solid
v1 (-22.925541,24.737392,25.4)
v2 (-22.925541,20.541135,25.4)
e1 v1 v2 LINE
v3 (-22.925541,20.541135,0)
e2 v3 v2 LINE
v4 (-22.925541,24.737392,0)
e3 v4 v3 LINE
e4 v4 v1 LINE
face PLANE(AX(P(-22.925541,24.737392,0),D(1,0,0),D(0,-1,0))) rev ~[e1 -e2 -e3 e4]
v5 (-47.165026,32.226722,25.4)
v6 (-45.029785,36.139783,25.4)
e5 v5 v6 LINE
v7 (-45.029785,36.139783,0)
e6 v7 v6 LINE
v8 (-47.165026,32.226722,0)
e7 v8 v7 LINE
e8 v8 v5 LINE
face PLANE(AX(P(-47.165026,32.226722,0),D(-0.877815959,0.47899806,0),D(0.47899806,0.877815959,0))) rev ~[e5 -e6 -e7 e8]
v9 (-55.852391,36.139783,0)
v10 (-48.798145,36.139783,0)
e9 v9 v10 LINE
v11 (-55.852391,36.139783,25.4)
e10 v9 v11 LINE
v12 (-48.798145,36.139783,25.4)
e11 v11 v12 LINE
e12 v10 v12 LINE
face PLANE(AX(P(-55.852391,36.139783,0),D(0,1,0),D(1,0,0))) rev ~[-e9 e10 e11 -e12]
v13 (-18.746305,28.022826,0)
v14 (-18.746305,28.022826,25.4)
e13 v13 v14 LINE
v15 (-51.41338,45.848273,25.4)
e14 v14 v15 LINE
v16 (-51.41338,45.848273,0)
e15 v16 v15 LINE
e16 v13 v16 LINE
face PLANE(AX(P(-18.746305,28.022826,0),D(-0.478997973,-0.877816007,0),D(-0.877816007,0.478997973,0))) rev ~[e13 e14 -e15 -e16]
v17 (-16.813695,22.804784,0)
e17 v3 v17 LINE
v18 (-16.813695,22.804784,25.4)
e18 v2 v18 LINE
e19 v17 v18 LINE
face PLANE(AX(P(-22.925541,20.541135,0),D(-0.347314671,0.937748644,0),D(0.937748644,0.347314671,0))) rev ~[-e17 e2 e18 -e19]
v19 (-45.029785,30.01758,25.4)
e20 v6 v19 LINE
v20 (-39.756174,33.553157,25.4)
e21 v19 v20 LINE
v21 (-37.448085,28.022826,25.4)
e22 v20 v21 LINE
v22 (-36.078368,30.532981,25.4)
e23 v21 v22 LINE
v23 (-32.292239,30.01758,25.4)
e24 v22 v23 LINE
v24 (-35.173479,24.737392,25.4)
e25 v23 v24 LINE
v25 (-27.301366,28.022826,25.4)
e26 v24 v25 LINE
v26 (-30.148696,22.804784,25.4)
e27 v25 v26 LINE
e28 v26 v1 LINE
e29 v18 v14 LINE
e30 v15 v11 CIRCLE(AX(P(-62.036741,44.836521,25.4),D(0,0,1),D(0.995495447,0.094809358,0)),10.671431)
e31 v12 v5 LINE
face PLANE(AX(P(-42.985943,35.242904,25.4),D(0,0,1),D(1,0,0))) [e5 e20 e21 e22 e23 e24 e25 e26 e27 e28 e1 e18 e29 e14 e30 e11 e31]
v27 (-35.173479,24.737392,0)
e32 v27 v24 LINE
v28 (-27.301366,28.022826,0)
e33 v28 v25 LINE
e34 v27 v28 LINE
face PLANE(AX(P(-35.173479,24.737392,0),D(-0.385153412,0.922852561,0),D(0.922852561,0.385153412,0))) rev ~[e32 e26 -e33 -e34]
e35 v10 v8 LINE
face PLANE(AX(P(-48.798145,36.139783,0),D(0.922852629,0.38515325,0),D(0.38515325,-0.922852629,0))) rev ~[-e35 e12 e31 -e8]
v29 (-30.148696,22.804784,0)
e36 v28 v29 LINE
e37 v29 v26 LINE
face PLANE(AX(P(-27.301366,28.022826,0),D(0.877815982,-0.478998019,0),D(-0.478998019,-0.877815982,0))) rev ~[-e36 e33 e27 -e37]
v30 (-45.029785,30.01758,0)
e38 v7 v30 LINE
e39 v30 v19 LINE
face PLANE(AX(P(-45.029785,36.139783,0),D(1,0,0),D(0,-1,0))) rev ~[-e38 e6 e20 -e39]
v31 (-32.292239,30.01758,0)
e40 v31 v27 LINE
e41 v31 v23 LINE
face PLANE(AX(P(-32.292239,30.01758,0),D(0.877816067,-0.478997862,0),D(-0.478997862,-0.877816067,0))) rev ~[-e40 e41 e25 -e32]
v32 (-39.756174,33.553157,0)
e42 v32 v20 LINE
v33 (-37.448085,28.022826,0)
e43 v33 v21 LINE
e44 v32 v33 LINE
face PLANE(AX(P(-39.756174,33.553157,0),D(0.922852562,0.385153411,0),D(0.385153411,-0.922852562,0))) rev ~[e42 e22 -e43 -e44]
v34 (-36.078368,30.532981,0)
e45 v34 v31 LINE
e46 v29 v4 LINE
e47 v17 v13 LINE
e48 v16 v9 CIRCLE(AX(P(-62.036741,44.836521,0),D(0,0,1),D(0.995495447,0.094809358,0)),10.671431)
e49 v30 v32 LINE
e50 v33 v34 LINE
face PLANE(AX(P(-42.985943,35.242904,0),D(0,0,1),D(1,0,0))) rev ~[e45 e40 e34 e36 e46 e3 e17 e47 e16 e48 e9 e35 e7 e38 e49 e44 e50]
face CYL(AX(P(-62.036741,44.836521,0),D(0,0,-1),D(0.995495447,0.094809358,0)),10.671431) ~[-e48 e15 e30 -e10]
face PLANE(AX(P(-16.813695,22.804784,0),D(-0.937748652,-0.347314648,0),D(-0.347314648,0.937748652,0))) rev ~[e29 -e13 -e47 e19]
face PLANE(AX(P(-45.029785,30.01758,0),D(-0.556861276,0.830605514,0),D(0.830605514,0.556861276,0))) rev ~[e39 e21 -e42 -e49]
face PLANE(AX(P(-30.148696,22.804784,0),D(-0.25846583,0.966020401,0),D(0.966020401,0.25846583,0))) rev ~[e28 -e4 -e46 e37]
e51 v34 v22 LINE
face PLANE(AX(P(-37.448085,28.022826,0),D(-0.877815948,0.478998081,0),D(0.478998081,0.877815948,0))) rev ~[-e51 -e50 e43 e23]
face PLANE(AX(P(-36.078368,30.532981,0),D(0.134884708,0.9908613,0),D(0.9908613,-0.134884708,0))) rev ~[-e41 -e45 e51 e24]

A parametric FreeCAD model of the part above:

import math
import FreeCAD as App
import Part
import Sketcher

V = App.Vector
Q = App.Units.Quantity

doc = App.newDocument("Part")
body = doc.addObject("PartDesign::Body", "Body")

# Sketch on XY plane
sketch1 = body.newObject("Sketcher::SketchObject", "Sketch")
sketch1.AttachmentSupport = (doc.getObject("XY_Plane"), [""])
sketch1.MapMode = "FlatFace"
sketch1.addGeometry([
    Part.ArcOfCircle(Part.Circle(V(-62, 44.8, 0), V(0, 0, 1), 10.7), math.radians(5), math.radians(305)),  # 0
    Part.LineSegment(V(-55.9, 36.1, 0), V(-48.8, 36.1, 0)),  # 1
    Part.LineSegment(V(-48.8, 36.1, 0), V(-47.2, 32.2, 0)),  # 2
    Part.LineSegment(V(-47.2, 32.2, 0), V(-45, 36.1, 0)),  # 3
    Part.LineSegment(V(-45, 36.1, 0), V(-45, 30, 0)),  # 4
    Part.LineSegment(V(-45, 30, 0), V(-39.8, 33.6, 0)),  # 5
    Part.LineSegment(V(-39.8, 33.6, 0), V(-37.4, 28, 0)),  # 6
    Part.LineSegment(V(-37.4, 28, 0), V(-36.1, 30.5, 0)),  # 7
    Part.LineSegment(V(-36.1, 30.5, 0), V(-32.3, 30, 0)),  # 8
    Part.LineSegment(V(-32.3, 30, 0), V(-35.2, 24.7, 0)),  # 9
    Part.LineSegment(V(-35.2, 24.7, 0), V(-27.3, 28, 0)),  # 10
    Part.LineSegment(V(-27.3, 28, 0), V(-30.1, 22.8, 0)),  # 11
    Part.LineSegment(V(-30.1, 22.8, 0), V(-22.9, 24.7, 0)),  # 12
    Part.LineSegment(V(-22.9, 24.7, 0), V(-22.9, 20.5, 0)),  # 13
    Part.LineSegment(V(-22.9, 20.5, 0), V(-16.8, 22.8, 0)),  # 14
    Part.LineSegment(V(-16.8, 22.8, 0), V(-18.7, 28, 0)),  # 15
    Part.LineSegment(V(-18.7, 28, 0), V(-51.4, 45.8, 0)),  # 16
], False)
sketch1.addConstraint([
    Sketcher.Constraint("Coincident", 0, 2, 1, 1),
    Sketcher.Constraint("Coincident", 1, 2, 2, 1),
    Sketcher.Constraint("Coincident", 2, 2, 3, 1),
    Sketcher.Constraint("Coincident", 3, 2, 4, 1),
    Sketcher.Constraint("Coincident", 4, 2, 5, 1),
    Sketcher.Constraint("Coincident", 5, 2, 6, 1),
    Sketcher.Constraint("Coincident", 6, 2, 7, 1),
    Sketcher.Constraint("Coincident", 7, 2, 8, 1),
    Sketcher.Constraint("Coincident", 8, 2, 9, 1),
    Sketcher.Constraint("Coincident", 9, 2, 10, 1),
    Sketcher.Constraint("Coincident", 10, 2, 11, 1),
    Sketcher.Constraint("Coincident", 11, 2, 12, 1),
    Sketcher.Constraint("Coincident", 12, 2, 13, 1),
    Sketcher.Constraint("Coincident", 13, 2, 14, 1),
    Sketcher.Constraint("Coincident", 14, 2, 15, 1),
    Sketcher.Constraint("Coincident", 15, 2, 16, 1),
    Sketcher.Constraint("Coincident", 16, 2, 0, 1),
    Sketcher.Constraint("Horizontal", 1),
    Sketcher.Constraint("Vertical", 4),
    Sketcher.Constraint("Vertical", 13),
    Sketcher.Constraint("Parallel", 2, 6),
    Sketcher.Constraint("Parallel", 3, 7),
    Sketcher.Constraint("Parallel", 7, 9),
    Sketcher.Constraint("Perpendicular", 6, 10),
    Sketcher.Constraint("Parallel", 9, 11),
    Sketcher.Constraint("Perpendicular", 14, 15),
    Sketcher.Constraint("Perpendicular", 11, 16),
    Sketcher.Constraint("Horizontal", 1, 2, 3, 2),
    Sketcher.Constraint("Horizontal", 4, 2, 8, 2),
    Sketcher.Constraint("Horizontal", 6, 2, 10, 2),
    Sketcher.Constraint("Horizontal", 9, 2, 12, 2),
    Sketcher.Constraint("Horizontal", 11, 2, 14, 2),
    Sketcher.Constraint("Horizontal", 10, 2, 15, 2),
    Sketcher.Constraint("Angle", 3, Q("61.380016 deg")),
    Sketcher.Constraint("Radius", 0, Q("10.671431 mm")),
    Sketcher.Constraint("DistanceX", 11, 2, 14, 2, Q("0.525 in")),
    Sketcher.Constraint("DistanceY", 2, 2, 0, 3, Q("12.609799 mm")),
    Sketcher.Constraint("DistanceX", 4, 2, 6, 2, Q("7.5817 mm")),
    Sketcher.Constraint("DistanceY", 4, 2, 7, 2, Q("0.515401 mm")),
    Sketcher.Constraint("DistanceX", 7, 2, 10, 2, Q("8.777002 mm")),
    Sketcher.Constraint("DistanceX", 8, 2, 12, 2, Q("9.366698 mm")),
    Sketcher.Constraint("Distance", 2, Q("4.24018 mm")),
    Sketcher.Constraint("Distance", 6, Q("5.992648 mm")),
    Sketcher.Constraint("Distance", 8, Q("3.821048 mm")),
    Sketcher.Constraint("Distance", 9, Q("6.015142 mm")),
    Sketcher.Constraint("Distance", 12, Q("7.477228 mm")),
    Sketcher.Constraint("DistanceX", 1, 1, 1, 2, Q("7.054246 mm")),
    Sketcher.Constraint("DistanceY", 4, 2, 4, 1, Q("6.122203 mm")),
    Sketcher.Constraint("DistanceY", 13, 2, 13, 1, Q("4.196257 mm")),
    Sketcher.Constraint("DistanceX", 0, 3, -1, 1, Q("62.036741 mm")),
    Sketcher.Constraint("DistanceY", -1, 1, 0, 3, Q("44.836521 mm")),
    Sketcher.Constraint("DistanceX", 0, 2, -1, 1, Q("55.852391 mm")),
])
pad1 = body.newObject("PartDesign::Pad", "Pad")
pad1.Profile = sketch1
pad1.Length = Q("1 in")

doc.recompute()
